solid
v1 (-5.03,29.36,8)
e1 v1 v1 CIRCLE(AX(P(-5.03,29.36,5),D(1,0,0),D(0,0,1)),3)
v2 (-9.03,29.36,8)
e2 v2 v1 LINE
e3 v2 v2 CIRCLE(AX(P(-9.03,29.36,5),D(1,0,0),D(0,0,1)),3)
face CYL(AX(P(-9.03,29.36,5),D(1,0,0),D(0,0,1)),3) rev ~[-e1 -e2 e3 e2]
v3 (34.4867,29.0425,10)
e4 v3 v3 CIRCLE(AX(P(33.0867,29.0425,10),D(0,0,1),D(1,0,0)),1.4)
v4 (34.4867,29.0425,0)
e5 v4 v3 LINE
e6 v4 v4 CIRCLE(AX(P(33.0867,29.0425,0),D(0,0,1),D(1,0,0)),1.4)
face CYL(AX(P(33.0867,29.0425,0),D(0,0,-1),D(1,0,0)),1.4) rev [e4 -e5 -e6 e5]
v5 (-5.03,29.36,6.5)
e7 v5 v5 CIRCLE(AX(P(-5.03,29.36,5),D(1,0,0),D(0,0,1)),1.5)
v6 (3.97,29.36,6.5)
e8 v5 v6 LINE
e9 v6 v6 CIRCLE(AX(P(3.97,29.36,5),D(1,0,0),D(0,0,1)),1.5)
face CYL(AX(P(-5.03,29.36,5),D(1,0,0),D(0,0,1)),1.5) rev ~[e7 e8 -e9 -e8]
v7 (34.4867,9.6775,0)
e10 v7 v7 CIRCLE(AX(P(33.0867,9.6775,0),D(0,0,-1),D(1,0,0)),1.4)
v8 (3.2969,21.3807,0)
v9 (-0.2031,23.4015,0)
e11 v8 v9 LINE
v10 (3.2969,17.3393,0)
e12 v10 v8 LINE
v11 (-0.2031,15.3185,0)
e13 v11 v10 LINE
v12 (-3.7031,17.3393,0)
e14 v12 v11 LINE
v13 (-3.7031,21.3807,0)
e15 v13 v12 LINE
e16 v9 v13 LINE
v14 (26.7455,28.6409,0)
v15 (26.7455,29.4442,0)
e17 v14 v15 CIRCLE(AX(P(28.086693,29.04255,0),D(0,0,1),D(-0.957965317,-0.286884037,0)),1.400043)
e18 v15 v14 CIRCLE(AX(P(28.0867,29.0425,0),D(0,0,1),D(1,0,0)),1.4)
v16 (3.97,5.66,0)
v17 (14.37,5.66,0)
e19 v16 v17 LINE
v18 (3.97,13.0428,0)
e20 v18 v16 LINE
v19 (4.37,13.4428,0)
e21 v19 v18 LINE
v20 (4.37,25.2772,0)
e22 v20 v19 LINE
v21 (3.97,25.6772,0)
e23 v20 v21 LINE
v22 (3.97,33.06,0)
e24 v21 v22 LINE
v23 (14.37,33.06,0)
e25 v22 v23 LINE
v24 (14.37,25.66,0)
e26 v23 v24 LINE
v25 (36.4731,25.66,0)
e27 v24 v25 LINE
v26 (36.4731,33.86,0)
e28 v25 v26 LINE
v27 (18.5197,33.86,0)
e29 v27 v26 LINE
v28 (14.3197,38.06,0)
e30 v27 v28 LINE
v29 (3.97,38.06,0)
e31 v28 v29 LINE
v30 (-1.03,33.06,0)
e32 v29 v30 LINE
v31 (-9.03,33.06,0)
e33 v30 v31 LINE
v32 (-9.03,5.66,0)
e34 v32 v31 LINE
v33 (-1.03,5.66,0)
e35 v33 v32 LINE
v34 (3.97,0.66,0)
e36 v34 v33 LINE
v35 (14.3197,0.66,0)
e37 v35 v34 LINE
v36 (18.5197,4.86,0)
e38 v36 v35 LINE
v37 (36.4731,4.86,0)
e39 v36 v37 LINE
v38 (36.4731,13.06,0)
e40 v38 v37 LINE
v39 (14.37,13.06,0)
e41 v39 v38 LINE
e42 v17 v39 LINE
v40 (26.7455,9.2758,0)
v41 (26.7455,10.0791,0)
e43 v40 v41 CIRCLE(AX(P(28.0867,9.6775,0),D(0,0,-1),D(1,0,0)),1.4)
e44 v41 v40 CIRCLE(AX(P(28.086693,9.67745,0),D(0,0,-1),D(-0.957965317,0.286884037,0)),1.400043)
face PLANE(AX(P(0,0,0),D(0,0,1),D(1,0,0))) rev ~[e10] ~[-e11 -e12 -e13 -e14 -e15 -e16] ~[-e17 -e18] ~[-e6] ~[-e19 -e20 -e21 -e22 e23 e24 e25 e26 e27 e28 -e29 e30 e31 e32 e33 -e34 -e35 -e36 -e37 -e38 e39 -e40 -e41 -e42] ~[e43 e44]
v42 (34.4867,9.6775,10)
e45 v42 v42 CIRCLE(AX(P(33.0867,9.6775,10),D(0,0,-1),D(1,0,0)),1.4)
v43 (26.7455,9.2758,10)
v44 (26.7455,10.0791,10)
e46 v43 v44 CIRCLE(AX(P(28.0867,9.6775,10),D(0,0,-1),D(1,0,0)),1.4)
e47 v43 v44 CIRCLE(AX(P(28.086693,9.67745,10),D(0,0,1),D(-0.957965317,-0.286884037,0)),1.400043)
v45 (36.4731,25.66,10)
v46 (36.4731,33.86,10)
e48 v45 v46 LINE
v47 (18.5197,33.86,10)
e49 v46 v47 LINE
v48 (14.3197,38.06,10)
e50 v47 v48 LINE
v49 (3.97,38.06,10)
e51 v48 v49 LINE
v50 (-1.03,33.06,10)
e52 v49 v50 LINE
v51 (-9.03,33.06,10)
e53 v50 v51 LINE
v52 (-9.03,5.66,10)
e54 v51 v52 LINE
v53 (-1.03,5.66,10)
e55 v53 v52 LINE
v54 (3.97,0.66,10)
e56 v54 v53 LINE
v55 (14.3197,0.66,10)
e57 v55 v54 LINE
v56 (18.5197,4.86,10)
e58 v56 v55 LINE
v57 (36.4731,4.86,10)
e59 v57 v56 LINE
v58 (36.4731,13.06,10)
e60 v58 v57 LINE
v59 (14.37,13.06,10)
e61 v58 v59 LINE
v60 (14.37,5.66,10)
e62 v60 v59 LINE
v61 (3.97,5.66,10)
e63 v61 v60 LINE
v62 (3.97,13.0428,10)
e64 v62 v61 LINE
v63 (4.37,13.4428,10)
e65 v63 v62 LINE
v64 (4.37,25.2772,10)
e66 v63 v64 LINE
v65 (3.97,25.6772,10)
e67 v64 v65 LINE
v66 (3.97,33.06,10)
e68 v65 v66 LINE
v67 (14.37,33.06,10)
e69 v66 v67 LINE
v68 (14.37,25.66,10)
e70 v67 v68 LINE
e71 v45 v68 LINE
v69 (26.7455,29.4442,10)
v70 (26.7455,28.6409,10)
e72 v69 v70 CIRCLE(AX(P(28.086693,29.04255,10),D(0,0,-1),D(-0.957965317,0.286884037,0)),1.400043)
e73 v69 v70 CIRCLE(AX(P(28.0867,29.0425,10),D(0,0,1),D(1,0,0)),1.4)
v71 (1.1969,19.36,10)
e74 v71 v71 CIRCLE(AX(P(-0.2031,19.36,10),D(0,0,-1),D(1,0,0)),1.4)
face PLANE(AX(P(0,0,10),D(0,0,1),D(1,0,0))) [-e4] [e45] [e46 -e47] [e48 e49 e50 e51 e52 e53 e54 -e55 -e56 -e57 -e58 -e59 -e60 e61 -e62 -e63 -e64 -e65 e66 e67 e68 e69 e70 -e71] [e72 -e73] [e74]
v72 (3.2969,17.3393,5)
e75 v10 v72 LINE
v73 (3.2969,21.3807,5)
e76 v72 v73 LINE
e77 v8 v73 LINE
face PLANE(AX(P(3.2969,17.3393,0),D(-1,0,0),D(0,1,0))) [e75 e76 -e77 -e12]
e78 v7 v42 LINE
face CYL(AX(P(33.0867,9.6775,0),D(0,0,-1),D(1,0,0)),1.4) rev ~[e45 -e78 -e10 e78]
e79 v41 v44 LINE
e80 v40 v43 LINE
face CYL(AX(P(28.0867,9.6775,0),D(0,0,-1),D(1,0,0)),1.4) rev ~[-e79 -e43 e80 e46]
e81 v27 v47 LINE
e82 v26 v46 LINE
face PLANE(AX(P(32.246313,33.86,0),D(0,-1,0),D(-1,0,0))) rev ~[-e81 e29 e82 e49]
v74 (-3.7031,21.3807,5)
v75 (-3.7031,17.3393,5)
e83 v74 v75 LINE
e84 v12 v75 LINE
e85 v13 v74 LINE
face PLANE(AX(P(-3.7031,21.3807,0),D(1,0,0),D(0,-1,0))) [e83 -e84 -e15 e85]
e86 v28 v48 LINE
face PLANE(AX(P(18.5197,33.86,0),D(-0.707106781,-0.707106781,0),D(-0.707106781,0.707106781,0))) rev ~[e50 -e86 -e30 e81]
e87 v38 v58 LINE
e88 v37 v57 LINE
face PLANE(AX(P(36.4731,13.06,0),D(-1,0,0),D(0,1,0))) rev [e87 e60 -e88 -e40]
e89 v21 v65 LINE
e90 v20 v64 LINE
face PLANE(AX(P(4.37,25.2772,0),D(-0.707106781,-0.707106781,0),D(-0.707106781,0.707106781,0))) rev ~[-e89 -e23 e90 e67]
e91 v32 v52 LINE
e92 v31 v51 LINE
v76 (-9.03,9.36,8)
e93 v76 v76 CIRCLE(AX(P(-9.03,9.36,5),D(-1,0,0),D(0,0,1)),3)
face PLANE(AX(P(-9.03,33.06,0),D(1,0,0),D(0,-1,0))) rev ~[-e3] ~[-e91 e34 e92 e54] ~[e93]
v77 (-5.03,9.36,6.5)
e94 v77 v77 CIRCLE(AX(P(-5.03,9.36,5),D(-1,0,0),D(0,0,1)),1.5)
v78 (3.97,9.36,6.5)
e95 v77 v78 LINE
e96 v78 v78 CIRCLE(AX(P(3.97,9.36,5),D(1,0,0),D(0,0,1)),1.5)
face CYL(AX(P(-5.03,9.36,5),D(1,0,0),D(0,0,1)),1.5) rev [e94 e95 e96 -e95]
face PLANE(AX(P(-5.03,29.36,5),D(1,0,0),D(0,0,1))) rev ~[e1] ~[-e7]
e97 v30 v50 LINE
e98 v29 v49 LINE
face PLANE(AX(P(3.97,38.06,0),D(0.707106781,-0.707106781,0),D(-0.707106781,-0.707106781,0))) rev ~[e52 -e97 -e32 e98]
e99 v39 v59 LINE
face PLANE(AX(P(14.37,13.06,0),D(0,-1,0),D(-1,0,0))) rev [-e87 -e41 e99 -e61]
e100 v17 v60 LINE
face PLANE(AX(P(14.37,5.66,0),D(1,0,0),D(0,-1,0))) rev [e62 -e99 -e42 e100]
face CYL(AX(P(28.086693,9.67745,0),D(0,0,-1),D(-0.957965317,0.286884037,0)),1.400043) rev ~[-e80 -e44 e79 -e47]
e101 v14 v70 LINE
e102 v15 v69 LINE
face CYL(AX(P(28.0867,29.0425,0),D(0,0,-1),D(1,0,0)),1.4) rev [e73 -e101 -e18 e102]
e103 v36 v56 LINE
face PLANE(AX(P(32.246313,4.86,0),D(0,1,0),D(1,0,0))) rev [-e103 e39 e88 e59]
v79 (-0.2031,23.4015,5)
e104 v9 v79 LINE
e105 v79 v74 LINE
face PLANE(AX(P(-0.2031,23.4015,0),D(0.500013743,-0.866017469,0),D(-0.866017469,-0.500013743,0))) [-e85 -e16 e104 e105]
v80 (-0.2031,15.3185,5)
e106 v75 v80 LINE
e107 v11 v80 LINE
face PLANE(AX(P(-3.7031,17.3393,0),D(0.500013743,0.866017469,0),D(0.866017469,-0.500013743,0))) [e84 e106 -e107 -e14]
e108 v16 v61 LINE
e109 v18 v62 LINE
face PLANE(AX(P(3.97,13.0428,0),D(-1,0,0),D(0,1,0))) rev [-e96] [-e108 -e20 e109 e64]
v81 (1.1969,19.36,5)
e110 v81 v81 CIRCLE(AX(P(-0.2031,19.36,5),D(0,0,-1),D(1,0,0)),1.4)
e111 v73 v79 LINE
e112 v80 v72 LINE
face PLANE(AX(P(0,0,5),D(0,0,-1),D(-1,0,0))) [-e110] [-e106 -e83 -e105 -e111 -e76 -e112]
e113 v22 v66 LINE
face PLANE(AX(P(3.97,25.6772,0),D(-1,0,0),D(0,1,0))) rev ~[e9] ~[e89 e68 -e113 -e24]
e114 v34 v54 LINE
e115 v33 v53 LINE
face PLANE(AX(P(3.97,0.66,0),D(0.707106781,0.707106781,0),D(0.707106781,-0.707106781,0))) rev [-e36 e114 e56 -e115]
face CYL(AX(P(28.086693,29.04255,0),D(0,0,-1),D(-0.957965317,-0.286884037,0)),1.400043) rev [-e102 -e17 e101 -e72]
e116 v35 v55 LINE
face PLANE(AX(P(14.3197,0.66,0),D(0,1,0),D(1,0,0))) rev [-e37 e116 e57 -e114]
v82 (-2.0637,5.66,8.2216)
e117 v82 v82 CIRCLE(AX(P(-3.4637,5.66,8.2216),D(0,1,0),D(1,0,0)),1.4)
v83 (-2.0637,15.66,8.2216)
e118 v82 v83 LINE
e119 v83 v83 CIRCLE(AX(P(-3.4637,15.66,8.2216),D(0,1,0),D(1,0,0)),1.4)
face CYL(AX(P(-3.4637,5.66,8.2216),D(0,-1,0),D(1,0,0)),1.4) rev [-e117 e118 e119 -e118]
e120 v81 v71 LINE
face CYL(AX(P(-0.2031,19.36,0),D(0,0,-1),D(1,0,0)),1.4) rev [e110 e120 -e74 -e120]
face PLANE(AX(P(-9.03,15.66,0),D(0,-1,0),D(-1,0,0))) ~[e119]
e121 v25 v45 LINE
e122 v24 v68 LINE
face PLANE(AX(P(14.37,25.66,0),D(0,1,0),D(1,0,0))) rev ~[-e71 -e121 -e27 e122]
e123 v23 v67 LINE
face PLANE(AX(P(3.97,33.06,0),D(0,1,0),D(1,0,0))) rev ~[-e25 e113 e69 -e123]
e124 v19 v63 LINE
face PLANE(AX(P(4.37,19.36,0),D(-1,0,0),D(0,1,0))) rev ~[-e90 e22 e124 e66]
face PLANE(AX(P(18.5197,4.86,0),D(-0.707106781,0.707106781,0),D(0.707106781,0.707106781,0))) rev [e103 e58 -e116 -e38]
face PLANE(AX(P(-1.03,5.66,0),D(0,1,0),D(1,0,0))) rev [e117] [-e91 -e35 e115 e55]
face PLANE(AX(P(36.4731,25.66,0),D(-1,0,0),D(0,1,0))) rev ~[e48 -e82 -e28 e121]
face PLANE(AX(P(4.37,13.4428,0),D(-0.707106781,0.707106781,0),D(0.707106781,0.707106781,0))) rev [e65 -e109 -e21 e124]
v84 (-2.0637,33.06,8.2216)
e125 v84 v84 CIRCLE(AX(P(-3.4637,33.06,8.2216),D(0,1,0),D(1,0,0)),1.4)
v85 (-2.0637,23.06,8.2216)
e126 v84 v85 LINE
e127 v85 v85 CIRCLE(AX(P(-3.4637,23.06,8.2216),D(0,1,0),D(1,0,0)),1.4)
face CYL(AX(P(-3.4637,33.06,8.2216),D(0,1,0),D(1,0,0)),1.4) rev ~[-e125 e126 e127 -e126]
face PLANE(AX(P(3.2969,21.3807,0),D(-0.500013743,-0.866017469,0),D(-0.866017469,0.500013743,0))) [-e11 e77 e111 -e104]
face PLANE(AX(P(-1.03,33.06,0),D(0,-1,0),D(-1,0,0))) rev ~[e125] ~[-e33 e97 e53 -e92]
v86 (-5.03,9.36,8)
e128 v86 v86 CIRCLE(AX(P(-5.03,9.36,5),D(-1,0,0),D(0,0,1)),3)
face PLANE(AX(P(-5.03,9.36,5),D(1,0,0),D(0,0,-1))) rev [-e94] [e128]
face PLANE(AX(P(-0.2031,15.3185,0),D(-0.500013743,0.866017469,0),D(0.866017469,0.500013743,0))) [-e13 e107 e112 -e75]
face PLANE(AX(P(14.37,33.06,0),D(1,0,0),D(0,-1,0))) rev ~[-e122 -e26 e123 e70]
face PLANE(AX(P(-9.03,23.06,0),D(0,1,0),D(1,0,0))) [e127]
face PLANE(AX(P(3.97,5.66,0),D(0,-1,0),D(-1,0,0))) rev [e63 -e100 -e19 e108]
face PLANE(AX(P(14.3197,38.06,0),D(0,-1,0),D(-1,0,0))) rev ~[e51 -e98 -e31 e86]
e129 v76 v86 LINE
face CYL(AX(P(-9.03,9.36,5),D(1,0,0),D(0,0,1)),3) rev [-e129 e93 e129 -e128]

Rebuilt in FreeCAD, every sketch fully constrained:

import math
import FreeCAD as App
import Part
import Sketcher
from FreeCAD import Vector
Q = App.Units.Quantity


def add_polygon(sketch, points):
    """Adds a closed chain of lines whose ends are joined by coincident constraints."""
    first, n = sketch.GeometryCount, len(points)
    for a, b in zip(points, points[1:] + points[:1]):
        sketch.addGeometry(Part.LineSegment(App.Vector(*a, 0), App.Vector(*b, 0)), False)
    for i in range(n):
        sketch.addConstraint(Sketcher.Constraint("Coincident", first + i, 2, first + (i + 1) % n, 1))

doc = App.newDocument("Part")
body = doc.addObject("PartDesign::Body", "Body")

# Sketch on XY plane
sketch1 = body.newObject("Sketcher::SketchObject", "Sketch")
sketch1.AttachmentSupport = (doc.getObject("XY_Plane"), [""])
sketch1.MapMode = "FlatFace"
sketch1.addGeometry([
    Part.LineSegment(Vector(14.4, 33.1, 0), Vector(14.4, 25.7, 0)),  # 0
    Part.LineSegment(Vector(14.4, 25.7, 0), Vector(36.5, 25.7, 0)),  # 1
    Part.LineSegment(Vector(36.5, 25.7, 0), Vector(36.5, 33.9, 0)),  # 2
    Part.LineSegment(Vector(36.5, 33.9, 0), Vector(18.5, 33.9, 0)),  # 3
    Part.LineSegment(Vector(18.5, 33.9, 0), Vector(14.3, 38.1, 0)),  # 4
    Part.LineSegment(Vector(14.3, 38.1, 0), Vector(4, 38.1, 0)),  # 5
    Part.LineSegment(Vector(4, 38.1, 0), Vector(-1, 33.1, 0)),  # 6
    Part.LineSegment(Vector(-1, 33.1, 0), Vector(-9, 33.1, 0)),  # 7
    Part.LineSegment(Vector(-9, 33.1, 0), Vector(-9, 19.4, 0)),  # 8
    Part.LineSegment(Vector(-9, 19.4, 0), Vector(-1.6, 19.4, 0)),  # 9
    Part.ArcOfCircle(Part.Circle(Vector(-0.2, 19.4, 0), Vector(0, 0, 1), 1.4), math.radians(0), math.radians(180)),  # 10
    Part.LineSegment(Vector(1.2, 19.4, 0), Vector(4.4, 19.4, 0)),  # 11
    Part.LineSegment(Vector(4.4, 19.4, 0), Vector(4.4, 25.3, 0)),  # 12
    Part.LineSegment(Vector(4.4, 25.3, 0), Vector(4, 25.7, 0)),  # 13
    Part.LineSegment(Vector(4, 25.7, 0), Vector(4, 33.1, 0)),  # 14
    Part.LineSegment(Vector(4, 33.1, 0), Vector(14.4, 33.1, 0)),  # 15
    Part.ArcOfCircle(Part.Circle(Vector(28.1, 29, 0), Vector(0, 0, 1), 1.4), math.radians(163), math.radians(197)),  # 16
    Part.ArcOfCircle(Part.Circle(Vector(28.1, 29, 0), Vector(0, 0, 1), 1.4), math.radians(-163), math.radians(163)),  # 17
    Part.Circle(Vector(33.1, 29, 0), Vector(0, 0, 1), 1.4),  # 18
], False)
sketch1.addConstraint([
    Sketcher.Constraint("Coincident", 0, 2, 1, 1),
    Sketcher.Constraint("Coincident", 1, 2, 2, 1),
    Sketcher.Constraint("Coincident", 2, 2, 3, 1),
    Sketcher.Constraint("Coincident", 3, 2, 4, 1),
    Sketcher.Constraint("Coincident", 4, 2, 5, 1),
    Sketcher.Constraint("Coincident", 5, 2, 6, 1),
    Sketcher.Constraint("Coincident", 6, 2, 7, 1),
    Sketcher.Constraint("Coincident", 7, 2, 8, 1),
    Sketcher.Constraint("Coincident", 8, 2, 9, 1),
    Sketcher.Constraint("Coincident", 9, 2, 10, 2),
    Sketcher.Constraint("Coincident", 10, 1, 11, 1),
    Sketcher.Constraint("Coincident", 11, 2, 12, 1),
    Sketcher.Constraint("Coincident", 12, 2, 13, 1),
    Sketcher.Constraint("Coincident", 13, 2, 14, 1),
    Sketcher.Constraint("Coincident", 14, 2, 15, 1),
    Sketcher.Constraint("Coincident", 15, 2, 0, 1),
    Sketcher.Constraint("Tangent", 16, 1, 17, 2),
    Sketcher.Constraint("Coincident", 17, 1, 16, 2),
    Sketcher.Constraint("Vertical", 0),
    Sketcher.Constraint("Horizontal", 1),
    Sketcher.Constraint("Vertical", 2),
    Sketcher.Constraint("Horizontal", 3),
    Sketcher.Constraint("Horizontal", 5),
    Sketcher.Constraint("Horizontal", 7),
    Sketcher.Constraint("Vertical", 8),
    Sketcher.Constraint("Horizontal", 9),
    Sketcher.Constraint("Horizontal", 11),
    Sketcher.Constraint("Vertical", 12),
    Sketcher.Constraint("Vertical", 14),
    Sketcher.Constraint("Horizontal", 15),
    Sketcher.Constraint("Equal", 10, 16),
    Sketcher.Constraint("Equal", 17, 18),
    Sketcher.Constraint("Perpendicular", 4, 6),
    Sketcher.Constraint("Perpendicular", 6, 13),
    Sketcher.Constraint("Horizontal", 17, 3, 18, 3),
    Sketcher.Constraint("Horizontal", 10, 3, 8, 2),
    Sketcher.Constraint("Horizontal", 9, 2, 10, 1),
    Sketcher.Constraint("Horizontal", 7, 2, 14, 2),
    Sketcher.Constraint("Vertical", 5, 2, 13, 2),
    Sketcher.Constraint("Vertical", 16, 1, 17, 1),
    Sketcher.Constraint("Diameter", 18, Q("2.8 mm")),
    Sketcher.Constraint("Angle", 4, Q("135 deg")),
    Sketcher.Constraint("DistanceX", 16, 3, 18, 3, Q("5 mm")),
    Sketcher.Constraint("DistanceX", 6, 2, 5, 2, Q("5 mm")),
    Sketcher.Constraint("DistanceX", 7, 2, 5, 2, Q("13 mm")),
    Sketcher.Constraint("DistanceX", 15, 1, 15, 2, Q("10.4 mm")),
    Sketcher.Constraint("DistanceY", 0, 2, 0, 1, Q("7.4 mm")),
    Sketcher.Constraint("DistanceY", 2, 1, 2, 2, Q("8.2 mm")),
    Sketcher.Constraint("DistanceY", 8, 2, 8, 1, Q("13.7 mm")),
    Sketcher.Constraint("DistanceX", 7, 2, 10, 3, Q("8.827 mm")),
    Sketcher.Constraint("DistanceX", 11, 2, 0, 2, Q("10 mm")),
    Sketcher.Constraint("DistanceX", 1, 1, 1, 2, Q("22.103 mm")),
    Sketcher.Constraint("DistanceY", -1, 1, 10, 3, Q("19.36 mm")),
    Sketcher.Constraint("DistanceX", -1, 1, 0, 2, Q("14.37 mm")),
    Sketcher.Constraint("DistanceX", 3, 2, 3, 1, Q("17.9534 mm")),
    Sketcher.Constraint("DistanceY", 12, 1, 12, 2, Q("5.9172 mm")),
    Sketcher.Constraint("DistanceY", -1, 1, 17, 1, Q("28.641 mm")),
    Sketcher.Constraint("DistanceX", 3, 2, 16, 3, Q("9.567 mm")),
    Sketcher.Constraint("DistanceY", -1, 1, 16, 3, Q("29.0425 mm")),
])
pad1 = body.newObject("PartDesign::Pad", "Pad")
pad1.Profile = sketch1
pad1.Length = 10

# Sketch on YZ plane
sketch2 = body.newObject("Sketcher::SketchObject", "Sketch001")
sketch2.AttachmentSupport = (doc.getObject("YZ_Plane"), [""])
sketch2.MapMode = "FlatFace"
sketch2.AttachmentOffset = App.Placement(Vector(0, 0, -9.03), App.Rotation())
sketch2.addGeometry(Part.Circle(Vector(29.4, 5, 0), Vector(0, 0, 1), 1.5), False)
sketch2.addConstraint([
    Sketcher.Constraint("Diameter", 0, Q("3 mm")),
    Sketcher.Constraint("DistanceY", -1, 1, 0, 3, Q("5 mm")),
    Sketcher.Constraint("DistanceX", -1, 1, 0, 3, Q("29.36 mm")),
])
doc.recompute()
hole = body.newObject("PartDesign::Hole", "Hole")
hole.Profile = sketch2
hole.ThreadType = "None"
hole.Diameter = 3
hole.DepthType = "Dimension"
hole.Depth = 20
hole.DrillPoint = "Angled"
hole.DrillPointAngle = 118
hole.HoleCutType = "Counterbore"
hole.HoleCutDiameter = 6
hole.HoleCutDepth = 4
hole.Reversed = True

# Sketch on XZ plane
sketch3 = body.newObject("Sketcher::SketchObject", "Sketch002")
sketch3.AttachmentSupport = (doc.getObject("XZ_Plane"), [""])
sketch3.MapMode = "FlatFace"
sketch3.AttachmentOffset = App.Placement(Vector(0, 0, -33.06), App.Rotation())
sketch3.addGeometry(Part.Circle(Vector(-3.5, 8.2, 0), Vector(0, 0, 1), 1.4), False)
sketch3.addConstraint([
    Sketcher.Constraint("Diameter", 0, Q("2.8 mm")),
    Sketcher.Constraint("DistanceX", 0, 3, -1, 1, Q("3.4637 mm")),
    Sketcher.Constraint("DistanceY", -1, 1, 0, 3, Q("8.2216 mm")),
])
pocket1 = body.newObject("PartDesign::Pocket", "Pocket")
pocket1.Profile = sketch3
pocket1.Length = 10
pocket1.Reversed = True
doc.recompute()

datumplane = body.newObject("PartDesign::Plane", "DatumPlane")
datumplane.AttachmentSupport = (doc.getObject("XZ_Plane"), [""])
datumplane.MapMode = "FlatFace"
datumplane.AttachmentOffset = App.Placement(Vector(0, 0, -19.36), App.Rotation())
mirrored = body.newObject("PartDesign::Mirrored", "Mirrored")
mirrored.Originals = [pad1, hole, pocket1]
mirrored.MirrorPlane = (datumplane, [""])
body.Tip = mirrored

# Sketch on XY plane
sketch4 = body.newObject("Sketcher::SketchObject", "Sketch003")
sketch4.AttachmentSupport = (doc.getObject("XY_Plane"), [""])
sketch4.MapMode = "FlatFace"
add_polygon(sketch4, [(-0.2, 23.4), (3.3, 21.4), (3.3, 17.3), (-0.2, 15.3), (-3.7, 17.3), (-3.7, 21.4)])  # lines 0-5
sketch4.addConstraint([
    Sketcher.Constraint("Vertical", 1),
    Sketcher.Constraint("Vertical", 4),
    Sketcher.Constraint("Parallel", 0, 3),
    Sketcher.Constraint("Parallel", 2, 5),
    Sketcher.Constraint("Horizontal", 1, 2, 3, 2),
    Sketcher.Constraint("Horizontal", 0, 2, 4, 2),
    Sketcher.Constraint("Vertical", 2, 2, 5, 2),
    Sketcher.Constraint("DistanceX", 3, 2, 1, 2, Q("7 mm")),
    Sketcher.Constraint("Angle", 0, Q("-30.001 deg")),
    Sketcher.Constraint("DistanceY", 1, 2, 1, 1, Q("4.0414 mm")),
    Sketcher.Constraint("DistanceX", -1, 1, 0, 2, Q("3.297 mm")),
    Sketcher.Constraint("DistanceY", -1, 1, 0, 2, Q("21.3807 mm")),
])
pocket2 = body.newObject("PartDesign::Pocket", "Pocket001")
pocket2.Profile = sketch4
pocket2.Length = 5
pocket2.Reversed = True

doc.recompute()
